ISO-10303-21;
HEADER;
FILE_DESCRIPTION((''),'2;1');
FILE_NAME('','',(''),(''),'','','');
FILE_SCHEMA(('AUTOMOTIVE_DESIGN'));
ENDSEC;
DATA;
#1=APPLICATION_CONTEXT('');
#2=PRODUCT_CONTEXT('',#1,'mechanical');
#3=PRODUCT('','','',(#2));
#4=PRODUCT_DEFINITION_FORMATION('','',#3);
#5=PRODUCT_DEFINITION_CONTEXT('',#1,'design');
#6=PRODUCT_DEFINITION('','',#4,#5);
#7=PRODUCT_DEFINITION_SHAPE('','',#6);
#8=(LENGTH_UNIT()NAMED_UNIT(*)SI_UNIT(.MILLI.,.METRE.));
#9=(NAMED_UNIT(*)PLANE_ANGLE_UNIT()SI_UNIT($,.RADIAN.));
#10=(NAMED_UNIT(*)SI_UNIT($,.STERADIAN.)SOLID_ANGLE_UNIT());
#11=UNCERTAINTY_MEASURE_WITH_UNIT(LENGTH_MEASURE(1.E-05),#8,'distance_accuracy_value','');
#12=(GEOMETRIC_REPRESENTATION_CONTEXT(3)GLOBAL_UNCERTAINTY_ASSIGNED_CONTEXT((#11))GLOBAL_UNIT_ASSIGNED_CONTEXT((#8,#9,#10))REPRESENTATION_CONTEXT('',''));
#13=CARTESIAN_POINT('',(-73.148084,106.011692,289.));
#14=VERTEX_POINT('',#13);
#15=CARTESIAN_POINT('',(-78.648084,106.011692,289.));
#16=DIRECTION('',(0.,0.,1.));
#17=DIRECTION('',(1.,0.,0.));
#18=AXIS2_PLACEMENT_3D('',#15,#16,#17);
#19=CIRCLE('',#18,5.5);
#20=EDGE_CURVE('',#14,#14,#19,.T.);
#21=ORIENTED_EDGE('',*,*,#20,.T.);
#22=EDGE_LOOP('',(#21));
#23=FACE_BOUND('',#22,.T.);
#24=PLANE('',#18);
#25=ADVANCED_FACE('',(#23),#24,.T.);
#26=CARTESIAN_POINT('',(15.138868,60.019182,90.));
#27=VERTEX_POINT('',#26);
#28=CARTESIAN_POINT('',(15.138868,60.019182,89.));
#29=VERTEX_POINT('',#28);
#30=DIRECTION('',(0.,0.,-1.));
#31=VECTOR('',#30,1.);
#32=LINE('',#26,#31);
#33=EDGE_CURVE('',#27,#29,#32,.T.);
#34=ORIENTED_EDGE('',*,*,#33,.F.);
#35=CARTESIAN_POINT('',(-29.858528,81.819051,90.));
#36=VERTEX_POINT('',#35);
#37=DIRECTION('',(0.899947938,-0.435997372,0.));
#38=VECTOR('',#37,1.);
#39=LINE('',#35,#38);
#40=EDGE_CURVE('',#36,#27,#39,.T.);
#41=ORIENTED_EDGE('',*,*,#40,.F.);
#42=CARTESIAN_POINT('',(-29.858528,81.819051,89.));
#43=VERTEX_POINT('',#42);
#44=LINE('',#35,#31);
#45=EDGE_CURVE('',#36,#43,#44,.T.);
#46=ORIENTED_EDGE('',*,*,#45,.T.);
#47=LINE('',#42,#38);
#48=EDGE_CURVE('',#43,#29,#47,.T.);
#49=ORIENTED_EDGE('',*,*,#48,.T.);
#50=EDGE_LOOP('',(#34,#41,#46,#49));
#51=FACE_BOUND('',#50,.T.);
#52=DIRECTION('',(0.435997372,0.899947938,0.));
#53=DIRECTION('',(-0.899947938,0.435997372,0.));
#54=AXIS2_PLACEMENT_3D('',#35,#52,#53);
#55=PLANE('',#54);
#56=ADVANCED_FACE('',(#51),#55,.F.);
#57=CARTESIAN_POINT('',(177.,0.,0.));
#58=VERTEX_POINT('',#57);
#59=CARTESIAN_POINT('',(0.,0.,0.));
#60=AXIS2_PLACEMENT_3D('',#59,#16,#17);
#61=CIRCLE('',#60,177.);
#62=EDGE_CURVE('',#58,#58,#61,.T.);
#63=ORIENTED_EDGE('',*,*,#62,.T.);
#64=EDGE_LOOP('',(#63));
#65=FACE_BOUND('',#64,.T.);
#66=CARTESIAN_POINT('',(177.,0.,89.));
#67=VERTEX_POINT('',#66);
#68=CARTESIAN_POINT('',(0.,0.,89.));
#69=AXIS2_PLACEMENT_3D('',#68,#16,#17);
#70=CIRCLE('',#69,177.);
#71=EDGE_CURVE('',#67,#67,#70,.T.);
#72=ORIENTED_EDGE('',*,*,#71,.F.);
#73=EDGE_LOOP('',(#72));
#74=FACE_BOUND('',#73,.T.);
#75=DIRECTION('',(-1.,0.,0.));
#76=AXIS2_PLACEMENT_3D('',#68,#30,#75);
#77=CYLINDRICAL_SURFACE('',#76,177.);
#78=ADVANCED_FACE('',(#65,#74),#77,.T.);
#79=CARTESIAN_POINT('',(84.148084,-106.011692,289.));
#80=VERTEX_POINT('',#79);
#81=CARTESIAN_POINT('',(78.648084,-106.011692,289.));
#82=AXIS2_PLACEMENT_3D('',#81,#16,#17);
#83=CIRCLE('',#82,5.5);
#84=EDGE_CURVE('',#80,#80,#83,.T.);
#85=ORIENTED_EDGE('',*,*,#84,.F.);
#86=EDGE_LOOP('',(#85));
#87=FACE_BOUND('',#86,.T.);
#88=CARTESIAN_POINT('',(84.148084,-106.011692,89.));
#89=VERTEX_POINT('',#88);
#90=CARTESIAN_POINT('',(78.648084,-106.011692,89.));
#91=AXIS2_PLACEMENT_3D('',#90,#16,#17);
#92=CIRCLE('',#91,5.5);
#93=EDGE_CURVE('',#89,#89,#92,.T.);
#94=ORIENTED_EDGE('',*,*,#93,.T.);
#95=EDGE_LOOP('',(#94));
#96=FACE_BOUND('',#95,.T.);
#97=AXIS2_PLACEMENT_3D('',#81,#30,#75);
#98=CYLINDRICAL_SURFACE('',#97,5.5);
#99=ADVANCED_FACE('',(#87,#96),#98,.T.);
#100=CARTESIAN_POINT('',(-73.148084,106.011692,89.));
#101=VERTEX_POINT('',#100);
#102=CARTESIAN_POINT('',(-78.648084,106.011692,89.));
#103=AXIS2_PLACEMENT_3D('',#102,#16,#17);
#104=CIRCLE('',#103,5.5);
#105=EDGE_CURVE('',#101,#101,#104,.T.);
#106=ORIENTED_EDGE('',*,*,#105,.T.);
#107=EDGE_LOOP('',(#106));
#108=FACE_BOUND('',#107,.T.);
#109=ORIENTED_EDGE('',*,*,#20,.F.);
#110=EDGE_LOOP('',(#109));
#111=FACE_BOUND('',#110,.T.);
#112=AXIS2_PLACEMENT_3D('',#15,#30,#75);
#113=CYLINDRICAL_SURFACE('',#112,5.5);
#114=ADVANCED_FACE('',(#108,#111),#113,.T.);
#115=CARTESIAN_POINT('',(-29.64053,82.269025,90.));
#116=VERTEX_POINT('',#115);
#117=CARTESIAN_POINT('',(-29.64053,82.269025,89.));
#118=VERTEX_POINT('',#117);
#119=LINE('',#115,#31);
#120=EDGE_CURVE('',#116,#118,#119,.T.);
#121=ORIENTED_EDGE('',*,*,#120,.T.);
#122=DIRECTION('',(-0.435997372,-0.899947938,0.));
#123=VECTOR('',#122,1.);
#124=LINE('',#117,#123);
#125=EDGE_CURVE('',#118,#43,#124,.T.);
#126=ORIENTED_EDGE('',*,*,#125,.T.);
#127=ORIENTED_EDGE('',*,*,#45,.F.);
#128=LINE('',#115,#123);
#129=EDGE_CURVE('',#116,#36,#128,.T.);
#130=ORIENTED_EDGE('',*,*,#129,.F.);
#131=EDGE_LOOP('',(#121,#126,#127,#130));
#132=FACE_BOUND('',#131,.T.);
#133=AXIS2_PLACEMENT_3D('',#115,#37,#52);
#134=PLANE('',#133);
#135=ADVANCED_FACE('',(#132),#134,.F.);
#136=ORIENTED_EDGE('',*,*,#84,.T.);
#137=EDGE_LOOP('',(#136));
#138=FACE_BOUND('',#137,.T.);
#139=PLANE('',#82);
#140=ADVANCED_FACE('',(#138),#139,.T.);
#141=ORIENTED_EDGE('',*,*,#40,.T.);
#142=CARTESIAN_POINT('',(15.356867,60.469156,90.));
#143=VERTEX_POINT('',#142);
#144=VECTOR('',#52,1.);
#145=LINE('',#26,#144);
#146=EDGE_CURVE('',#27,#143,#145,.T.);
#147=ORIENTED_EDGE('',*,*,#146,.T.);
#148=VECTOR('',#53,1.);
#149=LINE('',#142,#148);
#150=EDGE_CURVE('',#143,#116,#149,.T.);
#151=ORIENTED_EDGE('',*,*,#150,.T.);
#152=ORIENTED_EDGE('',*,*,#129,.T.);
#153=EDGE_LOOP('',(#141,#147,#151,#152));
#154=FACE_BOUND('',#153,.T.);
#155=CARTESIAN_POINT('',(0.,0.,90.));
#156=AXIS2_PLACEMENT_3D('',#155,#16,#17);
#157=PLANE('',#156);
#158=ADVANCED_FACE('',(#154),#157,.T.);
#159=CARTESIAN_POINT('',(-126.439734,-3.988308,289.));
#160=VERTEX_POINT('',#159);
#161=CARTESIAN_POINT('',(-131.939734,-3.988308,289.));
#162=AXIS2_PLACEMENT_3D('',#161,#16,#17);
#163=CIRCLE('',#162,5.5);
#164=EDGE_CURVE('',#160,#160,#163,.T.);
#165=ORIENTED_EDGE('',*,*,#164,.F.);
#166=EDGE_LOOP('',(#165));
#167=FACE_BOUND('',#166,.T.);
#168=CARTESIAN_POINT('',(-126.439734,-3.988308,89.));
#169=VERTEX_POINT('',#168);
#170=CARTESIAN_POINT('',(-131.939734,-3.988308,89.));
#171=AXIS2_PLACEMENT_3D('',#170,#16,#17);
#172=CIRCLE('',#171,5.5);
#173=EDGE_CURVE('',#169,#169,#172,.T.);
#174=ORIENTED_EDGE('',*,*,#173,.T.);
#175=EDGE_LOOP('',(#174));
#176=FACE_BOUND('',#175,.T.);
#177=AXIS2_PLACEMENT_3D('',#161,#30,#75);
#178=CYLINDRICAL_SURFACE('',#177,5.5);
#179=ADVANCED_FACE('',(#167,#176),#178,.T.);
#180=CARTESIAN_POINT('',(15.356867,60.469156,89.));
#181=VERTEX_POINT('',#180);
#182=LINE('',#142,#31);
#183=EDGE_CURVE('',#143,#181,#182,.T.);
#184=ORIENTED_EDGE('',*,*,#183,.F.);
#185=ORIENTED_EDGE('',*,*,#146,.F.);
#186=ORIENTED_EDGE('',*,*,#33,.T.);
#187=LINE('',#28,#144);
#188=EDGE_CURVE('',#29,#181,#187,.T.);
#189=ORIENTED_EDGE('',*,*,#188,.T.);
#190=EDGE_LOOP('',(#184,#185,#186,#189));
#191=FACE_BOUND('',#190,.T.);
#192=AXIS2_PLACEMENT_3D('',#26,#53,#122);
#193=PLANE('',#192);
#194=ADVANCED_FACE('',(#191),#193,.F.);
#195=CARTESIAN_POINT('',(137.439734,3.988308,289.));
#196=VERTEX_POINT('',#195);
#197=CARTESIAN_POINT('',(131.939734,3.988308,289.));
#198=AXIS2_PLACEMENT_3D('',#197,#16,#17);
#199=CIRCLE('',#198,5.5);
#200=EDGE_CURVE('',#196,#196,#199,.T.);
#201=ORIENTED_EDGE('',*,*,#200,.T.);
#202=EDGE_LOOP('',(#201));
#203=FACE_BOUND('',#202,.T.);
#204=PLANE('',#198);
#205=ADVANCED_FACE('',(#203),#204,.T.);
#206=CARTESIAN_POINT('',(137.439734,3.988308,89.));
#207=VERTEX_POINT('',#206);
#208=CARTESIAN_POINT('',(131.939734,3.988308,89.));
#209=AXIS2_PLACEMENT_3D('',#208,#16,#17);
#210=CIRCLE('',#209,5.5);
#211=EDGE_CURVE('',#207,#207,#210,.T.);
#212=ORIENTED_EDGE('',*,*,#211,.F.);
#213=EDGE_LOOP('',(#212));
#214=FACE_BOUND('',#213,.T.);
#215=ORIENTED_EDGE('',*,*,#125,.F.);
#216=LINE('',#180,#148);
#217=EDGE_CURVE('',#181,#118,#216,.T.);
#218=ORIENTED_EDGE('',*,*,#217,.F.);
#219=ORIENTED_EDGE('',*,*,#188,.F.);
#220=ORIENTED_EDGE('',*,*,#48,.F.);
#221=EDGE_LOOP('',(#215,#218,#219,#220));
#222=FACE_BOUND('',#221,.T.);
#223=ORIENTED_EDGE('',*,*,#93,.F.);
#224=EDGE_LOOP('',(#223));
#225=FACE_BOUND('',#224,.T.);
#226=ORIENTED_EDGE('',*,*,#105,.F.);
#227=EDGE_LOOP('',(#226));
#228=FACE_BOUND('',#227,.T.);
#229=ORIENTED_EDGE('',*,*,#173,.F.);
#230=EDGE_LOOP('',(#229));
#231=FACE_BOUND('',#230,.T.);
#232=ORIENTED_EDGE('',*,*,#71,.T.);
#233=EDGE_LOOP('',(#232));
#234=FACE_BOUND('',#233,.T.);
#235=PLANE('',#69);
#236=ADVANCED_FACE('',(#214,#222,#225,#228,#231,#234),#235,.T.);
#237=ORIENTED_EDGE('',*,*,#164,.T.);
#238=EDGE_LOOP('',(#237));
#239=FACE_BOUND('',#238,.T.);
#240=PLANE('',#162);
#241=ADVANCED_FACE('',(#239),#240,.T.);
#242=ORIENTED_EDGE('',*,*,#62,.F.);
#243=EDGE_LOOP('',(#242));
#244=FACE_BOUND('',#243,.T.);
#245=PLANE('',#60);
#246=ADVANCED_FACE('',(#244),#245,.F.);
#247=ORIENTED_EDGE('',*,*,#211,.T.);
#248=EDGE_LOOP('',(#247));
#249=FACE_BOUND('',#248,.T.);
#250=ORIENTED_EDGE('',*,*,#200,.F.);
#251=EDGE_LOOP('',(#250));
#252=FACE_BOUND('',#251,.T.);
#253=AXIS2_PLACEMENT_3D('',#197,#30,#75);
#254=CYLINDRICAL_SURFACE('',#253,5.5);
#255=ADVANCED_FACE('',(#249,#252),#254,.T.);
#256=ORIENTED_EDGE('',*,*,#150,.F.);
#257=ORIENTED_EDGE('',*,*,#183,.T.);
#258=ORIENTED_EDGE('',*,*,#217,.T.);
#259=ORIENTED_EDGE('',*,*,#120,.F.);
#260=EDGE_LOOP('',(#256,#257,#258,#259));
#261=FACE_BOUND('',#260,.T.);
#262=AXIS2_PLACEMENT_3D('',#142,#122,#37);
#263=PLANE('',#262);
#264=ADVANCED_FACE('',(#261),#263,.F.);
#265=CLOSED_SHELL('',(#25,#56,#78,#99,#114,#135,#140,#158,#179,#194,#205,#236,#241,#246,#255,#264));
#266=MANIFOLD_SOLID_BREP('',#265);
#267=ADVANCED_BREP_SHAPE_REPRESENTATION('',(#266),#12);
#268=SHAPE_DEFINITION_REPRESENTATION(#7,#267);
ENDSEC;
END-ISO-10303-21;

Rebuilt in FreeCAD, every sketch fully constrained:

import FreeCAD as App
import Part
import Sketcher
from FreeCAD import Vector
Q = App.Units.Quantity

doc = App.newDocument("Part")
body = doc.addObject("PartDesign::Body", "Body")

# Sketch on XY plane
sketch1 = doc.addObject("Sketcher::SketchObject", "Sketch")
body.addObject(sketch1)
sketch1.AttachmentSupport = (doc.XY_Plane, [""])
sketch1.MapMode = "FlatFace"
sketch1.addGeometry(Part.Circle(Vector(0, 0, 0), Vector(0, 0, 1), 177), False)
sketch1.addConstraint(Sketcher.Constraint("Coincident", 0, 3, -1, 1))
sketch1.addConstraint(Sketcher.Constraint("Diameter", 0, Q("354 mm")))
pad1 = doc.addObject("PartDesign::Pad", "Pad")
body.addObject(pad1)
pad1.Profile = sketch1
pad1.Length = 89

# Sketch on XY plane
sketch2 = doc.addObject("Sketcher::SketchObject", "Sketch001")
body.addObject(sketch2)
sketch2.AttachmentSupport = (doc.XY_Plane, [""])
sketch2.MapMode = "FlatFace"
sketch2.AttachmentOffset = App.Placement(Vector(0, 0, 89), App.Rotation())
sketch2.addGeometry(Part.Circle(Vector(-131.939734, -3.988308, 0), Vector(0, 0, 1), 5.5), False)
sketch2.addGeometry(Part.Circle(Vector(78.648084, -106.011692, 0), Vector(0, 0, 1), 5.5), False)
sketch2.addGeometry(Part.Circle(Vector(131.939734, 3.988308, 0), Vector(0, 0, 1), 5.5), False)
sketch2.addGeometry(Part.Circle(Vector(-78.648084, 106.011692, 0), Vector(0, 0, 1), 5.5), False)
sketch2.addConstraint(Sketcher.Constraint("Equal", 0, 1))
sketch2.addConstraint(Sketcher.Constraint("Equal", 1, 2))
sketch2.addConstraint(Sketcher.Constraint("Equal", 2, 3))
sketch2.addConstraint(Sketcher.Constraint("Symmetric", 0, 3, 2, 3, -1, 1))
sketch2.addConstraint(Sketcher.Constraint("Symmetric", 1, 3, 3, 3, -1, 1))
sketch2.addConstraint(Sketcher.Constraint("Diameter", 0, Q("11 mm")))
sketch2.addConstraint(Sketcher.Constraint("DistanceY", 1, 3, 2, 3, Q("110 mm")))
sketch2.addConstraint(Sketcher.Constraint("DistanceX", 1, 3, 2, 3, Q("53.29165 mm")))
sketch2.addConstraint(Sketcher.Constraint("DistanceX", 0, 3, -1, 1, Q("131.939734 mm")))
sketch2.addConstraint(Sketcher.Constraint("DistanceY", 0, 3, -1, 1, Q("3.988308 mm")))
pad2 = doc.addObject("PartDesign::Pad", "Pad001")
body.addObject(pad2)
pad2.Profile = sketch2
pad2.Length = 200

# Sketch on XY plane
sketch3 = doc.addObject("Sketcher::SketchObject", "Sketch002")
body.addObject(sketch3)
sketch3.AttachmentSupport = (doc.XY_Plane, [""])
sketch3.MapMode = "FlatFace"
sketch3.AttachmentOffset = App.Placement(Vector(0, 0, 89), App.Rotation())
sketch3.addGeometry(Part.LineSegment(Vector(-29.64053, 82.269025, 0), Vector(-29.858528, 81.819051, 0)), False)
sketch3.addGeometry(Part.LineSegment(Vector(-29.858528, 81.819051, 0), Vector(15.138868, 60.019182, 0)), False)
sketch3.addGeometry(Part.LineSegment(Vector(15.138868, 60.019182, 0), Vector(15.356867, 60.469156, 0)), False)
sketch3.addGeometry(Part.LineSegment(Vector(15.356867, 60.469156, 0), Vector(-29.64053, 82.269025, 0)), False)
sketch3.addConstraint(Sketcher.Constraint("Coincident", 0, 2, 1, 1))
sketch3.addConstraint(Sketcher.Constraint("Coincident", 1, 2, 2, 1))
sketch3.addConstraint(Sketcher.Constraint("Coincident", 2, 2, 3, 1))
sketch3.addConstraint(Sketcher.Constraint("Coincident", 3, 2, 0, 1))
sketch3.addConstraint(Sketcher.Constraint("Distance", 1, Q("50 mm")))
sketch3.addConstraint(Sketcher.Constraint("Distance", 3, Q("50 mm")))
sketch3.addConstraint(Sketcher.Constraint("Distance", 0, Q("0.5 mm")))
sketch3.addConstraint(Sketcher.Constraint("Distance", 2, Q("0.5 mm")))
sketch3.addConstraint(Sketcher.Constraint("DistanceX", 1, 2, 2, 2, Q("0.217999 mm")))
sketch3.addConstraint(Sketcher.Constraint("DistanceX", 3, 2, 1, 2, Q("44.779398 mm")))
sketch3.addConstraint(Sketcher.Constraint("DistanceX", 0, 2, -1, 1, Q("29.858528 mm")))
sketch3.addConstraint(Sketcher.Constraint("DistanceY", -1, 1, 0, 2, Q("81.819051 mm")))
pad3 = doc.addObject("PartDesign::Pad", "Pad002")
body.addObject(pad3)
pad3.Profile = sketch3
pad3.Length = 1

doc.recompute()
